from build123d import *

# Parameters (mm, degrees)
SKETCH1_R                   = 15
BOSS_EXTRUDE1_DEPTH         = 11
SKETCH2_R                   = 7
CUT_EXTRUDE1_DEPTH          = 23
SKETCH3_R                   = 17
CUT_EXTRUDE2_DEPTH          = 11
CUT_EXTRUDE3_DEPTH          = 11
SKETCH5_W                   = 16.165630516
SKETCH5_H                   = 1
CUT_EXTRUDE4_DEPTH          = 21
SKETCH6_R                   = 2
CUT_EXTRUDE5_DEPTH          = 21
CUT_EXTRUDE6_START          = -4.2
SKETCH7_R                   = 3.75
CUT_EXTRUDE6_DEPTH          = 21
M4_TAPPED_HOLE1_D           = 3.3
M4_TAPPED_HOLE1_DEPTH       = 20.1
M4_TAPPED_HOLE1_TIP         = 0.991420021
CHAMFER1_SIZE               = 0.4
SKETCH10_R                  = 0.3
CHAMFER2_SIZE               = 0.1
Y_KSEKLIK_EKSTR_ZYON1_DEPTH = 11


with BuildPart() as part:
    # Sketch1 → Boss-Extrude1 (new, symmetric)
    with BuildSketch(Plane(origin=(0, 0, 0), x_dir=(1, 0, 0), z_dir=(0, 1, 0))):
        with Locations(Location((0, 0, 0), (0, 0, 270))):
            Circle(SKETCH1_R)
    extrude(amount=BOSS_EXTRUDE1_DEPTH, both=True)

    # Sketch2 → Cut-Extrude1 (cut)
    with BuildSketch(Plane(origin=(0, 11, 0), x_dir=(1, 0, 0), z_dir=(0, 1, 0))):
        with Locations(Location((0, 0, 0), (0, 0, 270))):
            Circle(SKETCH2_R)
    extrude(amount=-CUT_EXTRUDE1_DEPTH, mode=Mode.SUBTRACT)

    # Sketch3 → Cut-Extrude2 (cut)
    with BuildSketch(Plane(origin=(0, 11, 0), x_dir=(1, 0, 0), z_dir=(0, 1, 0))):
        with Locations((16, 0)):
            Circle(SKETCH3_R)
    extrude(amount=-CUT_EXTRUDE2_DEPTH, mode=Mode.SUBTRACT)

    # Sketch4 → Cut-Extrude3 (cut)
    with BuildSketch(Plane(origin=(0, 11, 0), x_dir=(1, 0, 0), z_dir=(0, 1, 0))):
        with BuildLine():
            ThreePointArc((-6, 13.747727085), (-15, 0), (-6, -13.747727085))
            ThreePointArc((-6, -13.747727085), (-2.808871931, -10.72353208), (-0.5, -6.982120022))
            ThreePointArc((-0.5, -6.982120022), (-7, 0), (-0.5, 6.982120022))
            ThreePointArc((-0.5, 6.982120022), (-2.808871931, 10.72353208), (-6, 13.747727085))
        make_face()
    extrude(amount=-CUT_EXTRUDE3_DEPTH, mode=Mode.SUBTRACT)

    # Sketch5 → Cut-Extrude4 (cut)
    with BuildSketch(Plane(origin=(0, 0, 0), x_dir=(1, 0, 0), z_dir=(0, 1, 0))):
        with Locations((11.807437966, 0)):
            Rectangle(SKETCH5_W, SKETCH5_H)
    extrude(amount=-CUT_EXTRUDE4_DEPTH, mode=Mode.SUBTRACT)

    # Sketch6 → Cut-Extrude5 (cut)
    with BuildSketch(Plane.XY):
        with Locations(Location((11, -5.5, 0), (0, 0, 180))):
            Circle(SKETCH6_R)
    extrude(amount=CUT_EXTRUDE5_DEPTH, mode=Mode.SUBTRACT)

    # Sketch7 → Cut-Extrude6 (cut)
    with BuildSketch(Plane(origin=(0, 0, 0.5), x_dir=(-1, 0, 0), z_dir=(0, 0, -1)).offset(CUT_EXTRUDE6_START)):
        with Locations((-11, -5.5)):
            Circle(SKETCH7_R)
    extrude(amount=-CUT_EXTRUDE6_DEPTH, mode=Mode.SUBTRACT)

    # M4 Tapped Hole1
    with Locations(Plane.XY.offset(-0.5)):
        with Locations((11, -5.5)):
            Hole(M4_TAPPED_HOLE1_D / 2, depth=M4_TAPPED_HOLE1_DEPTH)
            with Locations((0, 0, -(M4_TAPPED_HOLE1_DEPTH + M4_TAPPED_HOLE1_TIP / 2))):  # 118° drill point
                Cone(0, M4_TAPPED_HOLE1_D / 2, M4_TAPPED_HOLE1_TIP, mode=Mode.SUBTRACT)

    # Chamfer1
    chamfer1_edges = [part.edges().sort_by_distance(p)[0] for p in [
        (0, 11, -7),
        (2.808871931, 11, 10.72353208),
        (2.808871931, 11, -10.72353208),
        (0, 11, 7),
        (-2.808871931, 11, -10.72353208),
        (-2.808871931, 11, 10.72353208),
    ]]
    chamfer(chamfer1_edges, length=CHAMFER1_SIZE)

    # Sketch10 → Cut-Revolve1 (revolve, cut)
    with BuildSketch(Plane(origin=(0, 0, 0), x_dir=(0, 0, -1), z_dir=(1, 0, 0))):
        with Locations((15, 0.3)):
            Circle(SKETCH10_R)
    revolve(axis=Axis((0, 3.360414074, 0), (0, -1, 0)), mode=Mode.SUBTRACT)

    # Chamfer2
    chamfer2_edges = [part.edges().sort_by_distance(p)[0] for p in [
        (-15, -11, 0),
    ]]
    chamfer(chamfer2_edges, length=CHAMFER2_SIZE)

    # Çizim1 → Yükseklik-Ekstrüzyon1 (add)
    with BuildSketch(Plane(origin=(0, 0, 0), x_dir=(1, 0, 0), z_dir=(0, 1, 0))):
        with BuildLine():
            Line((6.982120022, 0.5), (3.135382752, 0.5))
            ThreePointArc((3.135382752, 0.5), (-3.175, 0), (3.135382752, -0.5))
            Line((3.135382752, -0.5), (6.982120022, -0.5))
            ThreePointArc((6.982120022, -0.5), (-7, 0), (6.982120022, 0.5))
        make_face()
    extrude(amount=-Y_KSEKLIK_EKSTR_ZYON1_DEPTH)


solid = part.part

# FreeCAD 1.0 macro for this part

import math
import FreeCAD as App
import Part
import Sketcher
Q = App.Units.Quantity


def edges_at(feature, points):
    """Names of the edges that pass closest to the given points."""
    edges = feature.Shape.Edges
    near = lambda p: min(range(len(edges)), key=lambda i: edges[i].distToShape(Part.Vertex(*p))[0])
    return sorted({f"Edge{near(p) + 1}" for p in points})

doc = App.newDocument("Part")
params = doc.addObject("Spreadsheet::Sheet", "Params")
for row, (alias, value) in enumerate([
    ("sketch1_diameter", "30 mm"),
    ("pad1_length", "22 mm"),
    ("sketch2_diameter", "14 mm"),
    ("pocket1_length", "23 mm"),
    ("sketch3_diameter", "34 mm"),
    ("pocket2_length", "11 mm"),
    ("sketch4_radius", "15 mm"),
    ("sketch4_radius2", "17 mm"),
    ("sketch4_radius3", "7 mm"),
    ("pocket3_length", "11 mm"),
    ("sketch5_height", "1 mm"),
    ("pocket4_length", "21 mm"),
    ("sketch6_diameter", "4 mm"),
    ("pocket5_length", "21 mm"),
    ("sketch7_diameter", "7.5 mm"),
    ("pocket6_length", "21 mm"),
    ("sketch8_diameter", "3.3 mm"),
    ("hole_diameter", "3.3 mm"),
    ("hole_depth", "20.1 mm"),
    ("chamfer_size", "0.4 mm"),
    ("sketch9_diameter", "0.6 mm"),
    ("groove_angle", "360 deg"),
    ("chamfer2_size", "0.1 mm"),
    ("sketch10_radius", "7 mm"),
    ("pad2_length", "11 mm"),
], start=1):
    params.set(f"A{row}", alias)
    params.set(f"B{row}", "=" + value)
    params.setAlias(f"B{row}", alias)

body = doc.addObject("PartDesign::Body", "Body")

sketch1 = body.newObject("Sketcher::SketchObject", "Sketch")
sketch1.AttachmentSupport = (doc.getObject("XZ_Plane"), [""])
sketch1.MapMode = "FlatFace"
sketch1.addGeometry(Part.Circle(App.Vector(0, 0, 0), App.Vector(0, 0, 1), 15), False)
sketch1.addConstraint([
    Sketcher.Constraint("Coincident", 0, 3, -1, 1),
    Sketcher.Constraint("Diameter", 0, Q("30 mm")),
])
sketch1.setExpression("Constraints[1]", "Params.sketch1_diameter")
pad1 = body.newObject("PartDesign::Pad", "Pad")
pad1.Profile = sketch1
pad1.setExpression("Length", "Params.pad1_length")
pad1.Midplane = True

sketch2 = body.newObject("Sketcher::SketchObject", "Sketch001")
sketch2.AttachmentSupport = (doc.getObject("XZ_Plane"), [""])
sketch2.MapMode = "FlatFace"
sketch2.AttachmentOffset = App.Placement(App.Vector(0, 0, -11), App.Rotation())
sketch2.addGeometry(Part.Circle(App.Vector(0, 0, 0), App.Vector(0, 0, 1), 7), False)
sketch2.addConstraint([
    Sketcher.Constraint("Coincident", 0, 3, -1, 1),
    Sketcher.Constraint("Diameter", 0, Q("14 mm")),
])
sketch2.setExpression("Constraints[1]", "Params.sketch2_diameter")
pocket1 = body.newObject("PartDesign::Pocket", "Pocket")
pocket1.Profile = sketch2
pocket1.setExpression("Length", "Params.pocket1_length")
pocket1.Reversed = True

sketch3 = body.newObject("Sketcher::SketchObject", "Sketch002")
sketch3.AttachmentSupport = (doc.getObject("XZ_Plane"), [""])
sketch3.MapMode = "FlatFace"
sketch3.AttachmentOffset = App.Placement(App.Vector(0, 0, -11), App.Rotation())
sketch3.addGeometry(Part.Circle(App.Vector(16, 0, 0), App.Vector(0, 0, 1), 17), False)
sketch3.addConstraint([
    Sketcher.Constraint("PointOnObject", 0, 3, -1),
    Sketcher.Constraint("Diameter", 0, Q("34 mm")),
    Sketcher.Constraint("DistanceX", -1, 1, 0, 3, Q("16 mm")),
])
sketch3.setExpression("Constraints[1]", "Params.sketch3_diameter")
pocket2 = body.newObject("PartDesign::Pocket", "Pocket001")
pocket2.Profile = sketch3
pocket2.setExpression("Length", "Params.pocket2_length")
pocket2.Reversed = True

sketch4 = body.newObject("Sketcher::SketchObject", "Sketch003")
sketch4.AttachmentSupport = (doc.getObject("XZ_Plane"), [""])
sketch4.MapMode = "FlatFace"
sketch4.AttachmentOffset = App.Placement(App.Vector(0, 0, -11), App.Rotation())
sketch4.addGeometry([
    Part.ArcOfCircle(Part.Circle(App.Vector(0, 0, 0), App.Vector(0, 0, 1), 15), math.radians(114), math.radians(246)),
    Part.ArcOfCircle(Part.Circle(App.Vector(-16, 0, 0), App.Vector(0, 0, 1), 17), math.radians(24), math.radians(54)),
    Part.ArcOfCircle(Part.Circle(App.Vector(0, 0, 0), App.Vector(0, 0, 1), 7), math.radians(94), math.radians(266)),
    Part.ArcOfCircle(Part.Circle(App.Vector(-16, 0, 0), App.Vector(0, 0, 1), 17), math.radians(-54), math.radians(-24)),
], False)
sketch4.addConstraint([
    Sketcher.Constraint("Coincident", 0, 1, 1, 2),
    Sketcher.Constraint("Coincident", 1, 1, 2, 1),
    Sketcher.Constraint("Coincident", 2, 2, 3, 2),
    Sketcher.Constraint("Coincident", 3, 1, 0, 2),
    Sketcher.Constraint("Coincident", 0, 3, -1, 1),
    Sketcher.Constraint("Coincident", 2, 3, -1, 1),
    Sketcher.Constraint("Coincident", 3, 3, 1, 3),
    Sketcher.Constraint("Equal", 1, 3),
    Sketcher.Constraint("PointOnObject", 1, 3, -1),
    Sketcher.Constraint("Radius", 0, Q("15 mm")),
    Sketcher.Constraint("Radius", 1, Q("17 mm")),
    Sketcher.Constraint("Radius", 2, Q("7 mm")),
    Sketcher.Constraint("DistanceX", 1, 3, -1, 1, Q("16 mm")),
])
sketch4.setExpression("Constraints[9]", "Params.sketch4_radius")
sketch4.setExpression("Constraints[10]", "Params.sketch4_radius2")
sketch4.setExpression("Constraints[11]", "Params.sketch4_radius3")
pocket3 = body.newObject("PartDesign::Pocket", "Pocket002")
pocket3.Profile = sketch4
pocket3.setExpression("Length", "Params.pocket3_length")
pocket3.Reversed = True

sketch5 = body.newObject("Sketcher::SketchObject", "Sketch004")
sketch5.AttachmentSupport = (doc.getObject("XZ_Plane"), [""])
sketch5.MapMode = "FlatFace"
sketch5.addGeometry([
    Part.LineSegment(App.Vector(3.7, -0.5, 0), App.Vector(3.7, 0.5, 0)),
    Part.LineSegment(App.Vector(3.7, 0.5, 0), App.Vector(19.9, 0.5, 0)),
    Part.LineSegment(App.Vector(19.9, 0.5, 0), App.Vector(19.9, -0.5, 0)),
    Part.LineSegment(App.Vector(19.9, -0.5, 0), App.Vector(3.7, -0.5, 0)),
], False)
sketch5.addConstraint([
    Sketcher.Constraint("Coincident", 0, 2, 1, 1),
    Sketcher.Constraint("Coincident", 1, 2, 2, 1),
    Sketcher.Constraint("Coincident", 2, 2, 3, 1),
    Sketcher.Constraint("Coincident", 3, 2, 0, 1),
    Sketcher.Constraint("Vertical", 0),
    Sketcher.Constraint("Horizontal", 1),
    Sketcher.Constraint("Vertical", 2),
    Sketcher.Constraint("Horizontal", 3),
    Sketcher.Constraint("DistanceY", 0, 1, 0, 2, Q("1 mm")),
    Sketcher.Constraint("DistanceY", -1, 1, 0, 2, Q("0.5 mm")),
    Sketcher.Constraint("DistanceX", 1, 1, 1, 2, Q("16.165631 mm")),
    Sketcher.Constraint("DistanceX", -1, 1, 0, 2, Q("3.724623 mm")),
])
sketch5.setExpression("Constraints[8]", "Params.sketch5_height")
pocket4 = body.newObject("PartDesign::Pocket", "Pocket003")
pocket4.Profile = sketch5
pocket4.setExpression("Length", "Params.pocket4_length")
pocket4.Reversed = True

sketch6 = body.newObject("Sketcher::SketchObject", "Sketch005")
sketch6.AttachmentSupport = (doc.getObject("XY_Plane"), [""])
sketch6.MapMode = "FlatFace"
sketch6.addGeometry(Part.Circle(App.Vector(11, -5.5, 0), App.Vector(0, 0, 1), 2), False)
sketch6.addConstraint([
    Sketcher.Constraint("Diameter", 0, Q("4 mm")),
    Sketcher.Constraint("DistanceX", -1, 1, 0, 3, Q("11 mm")),
    Sketcher.Constraint("DistanceY", 0, 3, -1, 1, Q("5.5 mm")),
])
sketch6.setExpression("Constraints[0]", "Params.sketch6_diameter")
pocket5 = body.newObject("PartDesign::Pocket", "Pocket004")
pocket5.Profile = sketch6
pocket5.setExpression("Length", "Params.pocket5_length")
pocket5.Reversed = True

sketch7 = body.newObject("Sketcher::SketchObject", "Sketch006")
sketch7.AttachmentSupport = (doc.getObject("XY_Plane"), [""])
sketch7.MapMode = "FlatFace"
sketch7.AttachmentOffset = App.Placement(App.Vector(0, 0, 4.7), App.Rotation())
sketch7.addGeometry(Part.Circle(App.Vector(11, -5.5, 0), App.Vector(0, 0, 1), 3.8), False)
sketch7.addConstraint([
    Sketcher.Constraint("Diameter", 0, Q("7.5 mm")),
    Sketcher.Constraint("DistanceX", -1, 1, 0, 3, Q("11 mm")),
    Sketcher.Constraint("DistanceY", 0, 3, -1, 1, Q("5.5 mm")),
])
sketch7.setExpression("Constraints[0]", "Params.sketch7_diameter")
pocket6 = body.newObject("PartDesign::Pocket", "Pocket005")
pocket6.Profile = sketch7
pocket6.setExpression("Length", "Params.pocket6_length")
pocket6.Reversed = True

sketch8 = body.newObject("Sketcher::SketchObject", "Sketch007")
sketch8.AttachmentSupport = (doc.getObject("XY_Plane"), [""])
sketch8.MapMode = "FlatFace"
sketch8.AttachmentOffset = App.Placement(App.Vector(0, 0, -0.5), App.Rotation())
sketch8.addGeometry(Part.Circle(App.Vector(11, -5.5, 0), App.Vector(0, 0, 1), 1.6), False)
sketch8.addConstraint([
    Sketcher.Constraint("Diameter", 0, Q("3.3 mm")),
    Sketcher.Constraint("DistanceX", -1, 1, 0, 3, Q("11 mm")),
    Sketcher.Constraint("DistanceY", 0, 3, -1, 1, Q("5.5 mm")),
])
sketch8.setExpression("Constraints[0]", "Params.sketch8_diameter")
doc.recompute()
hole = body.newObject("PartDesign::Hole", "Hole")
hole.Profile = sketch8
hole.ThreadType = "None"
hole.setExpression("Diameter", "Params.hole_diameter")
hole.DepthType = "Dimension"
hole.setExpression("Depth", "Params.hole_depth")
hole.DrillPoint = "Angled"
hole.DrillPointAngle = 118
doc.recompute()

chamfer = body.newObject("PartDesign::Chamfer", "Chamfer")
chamfer.Base = (hole, edges_at(hole, [
    (0, 11, -7),
    (2.809, 11, 10.724),
    (2.809, 11, -10.724),
    (0, 11, 7),
    (-2.809, 11, -10.724),
    (-2.809, 11, 10.724),
]))
chamfer.setExpression("Size", "Params.chamfer_size")

sketch9 = body.newObject("Sketcher::SketchObject", "Sketch008")
sketch9.AttachmentSupport = (doc.getObject("YZ_Plane"), [""])
sketch9.MapMode = "FlatFace"
sketch9.addGeometry(Part.Circle(App.Vector(0.3, -15, 0), App.Vector(0, 0, 1), 0.3), False)
sketch9.addConstraint([
    Sketcher.Constraint("Diameter", 0, Q("0.6 mm")),
    Sketcher.Constraint("DistanceY", 0, 3, -1, 1, Q("15 mm")),
    Sketcher.Constraint("DistanceX", -1, 1, 0, 3, Q("0.3 mm")),
])
sketch9.setExpression("Constraints[0]", "Params.sketch9_diameter")
groove = body.newObject("PartDesign::Groove", "Groove")
groove.Profile = sketch9
groove.ReferenceAxis = (sketch9, ["H_Axis"])
groove.setExpression("Angle", "Params.groove_angle")
doc.recompute()

chamfer2 = body.newObject("PartDesign::Chamfer", "Chamfer001")
chamfer2.Base = (groove, edges_at(groove, [(-15, -11, 0)]))
chamfer2.setExpression("Size", "Params.chamfer2_size")

sketch10 = body.newObject("Sketcher::SketchObject", "Sketch009")
sketch10.AttachmentSupport = (doc.getObject("XZ_Plane"), [""])
sketch10.MapMode = "FlatFace"
sketch10.addGeometry([
    Part.LineSegment(App.Vector(3.1, -0.5, 0), App.Vector(7, -0.5, 0)),
    Part.ArcOfCircle(Part.Circle(App.Vector(0, 0, 0), App.Vector(0, 0, 1), 7), math.radians(4), math.radians(356)),
    Part.LineSegment(App.Vector(7, 0.5, 0), App.Vector(3.1, 0.5, 0)),
    Part.ArcOfCircle(Part.Circle(App.Vector(0, 0, 0), App.Vector(0, 0, 1), 3.2), math.radians(9), math.radians(351)),
], False)
sketch10.addConstraint([
    Sketcher.Constraint("Coincident", 0, 2, 1, 2),
    Sketcher.Constraint("Coincident", 1, 1, 2, 1),
    Sketcher.Constraint("Coincident", 2, 2, 3, 1),
    Sketcher.Constraint("Coincident", 3, 2, 0, 1),
    Sketcher.Constraint("Horizontal", 0),
    Sketcher.Constraint("Horizontal", 2),
    Sketcher.Constraint("Coincident", 1, 3, -1, 1),
    Sketcher.Constraint("Coincident", 3, 3, -1, 1),
    Sketcher.Constraint("Vertical", 0, 2, 1, 1),
    Sketcher.Constraint("Radius", 1, Q("7 mm")),
    Sketcher.Constraint("Radius", 3, Q("3.175 mm")),
    Sketcher.Constraint("DistanceY", 0, 2, 1, 1, Q("1 mm")),
])
sketch10.setExpression("Constraints[9]", "Params.sketch10_radius")
pad2 = body.newObject("PartDesign::Pad", "Pad001")
pad2.Profile = sketch10
pad2.setExpression("Length", "Params.pad2_length")

doc.recompute()
